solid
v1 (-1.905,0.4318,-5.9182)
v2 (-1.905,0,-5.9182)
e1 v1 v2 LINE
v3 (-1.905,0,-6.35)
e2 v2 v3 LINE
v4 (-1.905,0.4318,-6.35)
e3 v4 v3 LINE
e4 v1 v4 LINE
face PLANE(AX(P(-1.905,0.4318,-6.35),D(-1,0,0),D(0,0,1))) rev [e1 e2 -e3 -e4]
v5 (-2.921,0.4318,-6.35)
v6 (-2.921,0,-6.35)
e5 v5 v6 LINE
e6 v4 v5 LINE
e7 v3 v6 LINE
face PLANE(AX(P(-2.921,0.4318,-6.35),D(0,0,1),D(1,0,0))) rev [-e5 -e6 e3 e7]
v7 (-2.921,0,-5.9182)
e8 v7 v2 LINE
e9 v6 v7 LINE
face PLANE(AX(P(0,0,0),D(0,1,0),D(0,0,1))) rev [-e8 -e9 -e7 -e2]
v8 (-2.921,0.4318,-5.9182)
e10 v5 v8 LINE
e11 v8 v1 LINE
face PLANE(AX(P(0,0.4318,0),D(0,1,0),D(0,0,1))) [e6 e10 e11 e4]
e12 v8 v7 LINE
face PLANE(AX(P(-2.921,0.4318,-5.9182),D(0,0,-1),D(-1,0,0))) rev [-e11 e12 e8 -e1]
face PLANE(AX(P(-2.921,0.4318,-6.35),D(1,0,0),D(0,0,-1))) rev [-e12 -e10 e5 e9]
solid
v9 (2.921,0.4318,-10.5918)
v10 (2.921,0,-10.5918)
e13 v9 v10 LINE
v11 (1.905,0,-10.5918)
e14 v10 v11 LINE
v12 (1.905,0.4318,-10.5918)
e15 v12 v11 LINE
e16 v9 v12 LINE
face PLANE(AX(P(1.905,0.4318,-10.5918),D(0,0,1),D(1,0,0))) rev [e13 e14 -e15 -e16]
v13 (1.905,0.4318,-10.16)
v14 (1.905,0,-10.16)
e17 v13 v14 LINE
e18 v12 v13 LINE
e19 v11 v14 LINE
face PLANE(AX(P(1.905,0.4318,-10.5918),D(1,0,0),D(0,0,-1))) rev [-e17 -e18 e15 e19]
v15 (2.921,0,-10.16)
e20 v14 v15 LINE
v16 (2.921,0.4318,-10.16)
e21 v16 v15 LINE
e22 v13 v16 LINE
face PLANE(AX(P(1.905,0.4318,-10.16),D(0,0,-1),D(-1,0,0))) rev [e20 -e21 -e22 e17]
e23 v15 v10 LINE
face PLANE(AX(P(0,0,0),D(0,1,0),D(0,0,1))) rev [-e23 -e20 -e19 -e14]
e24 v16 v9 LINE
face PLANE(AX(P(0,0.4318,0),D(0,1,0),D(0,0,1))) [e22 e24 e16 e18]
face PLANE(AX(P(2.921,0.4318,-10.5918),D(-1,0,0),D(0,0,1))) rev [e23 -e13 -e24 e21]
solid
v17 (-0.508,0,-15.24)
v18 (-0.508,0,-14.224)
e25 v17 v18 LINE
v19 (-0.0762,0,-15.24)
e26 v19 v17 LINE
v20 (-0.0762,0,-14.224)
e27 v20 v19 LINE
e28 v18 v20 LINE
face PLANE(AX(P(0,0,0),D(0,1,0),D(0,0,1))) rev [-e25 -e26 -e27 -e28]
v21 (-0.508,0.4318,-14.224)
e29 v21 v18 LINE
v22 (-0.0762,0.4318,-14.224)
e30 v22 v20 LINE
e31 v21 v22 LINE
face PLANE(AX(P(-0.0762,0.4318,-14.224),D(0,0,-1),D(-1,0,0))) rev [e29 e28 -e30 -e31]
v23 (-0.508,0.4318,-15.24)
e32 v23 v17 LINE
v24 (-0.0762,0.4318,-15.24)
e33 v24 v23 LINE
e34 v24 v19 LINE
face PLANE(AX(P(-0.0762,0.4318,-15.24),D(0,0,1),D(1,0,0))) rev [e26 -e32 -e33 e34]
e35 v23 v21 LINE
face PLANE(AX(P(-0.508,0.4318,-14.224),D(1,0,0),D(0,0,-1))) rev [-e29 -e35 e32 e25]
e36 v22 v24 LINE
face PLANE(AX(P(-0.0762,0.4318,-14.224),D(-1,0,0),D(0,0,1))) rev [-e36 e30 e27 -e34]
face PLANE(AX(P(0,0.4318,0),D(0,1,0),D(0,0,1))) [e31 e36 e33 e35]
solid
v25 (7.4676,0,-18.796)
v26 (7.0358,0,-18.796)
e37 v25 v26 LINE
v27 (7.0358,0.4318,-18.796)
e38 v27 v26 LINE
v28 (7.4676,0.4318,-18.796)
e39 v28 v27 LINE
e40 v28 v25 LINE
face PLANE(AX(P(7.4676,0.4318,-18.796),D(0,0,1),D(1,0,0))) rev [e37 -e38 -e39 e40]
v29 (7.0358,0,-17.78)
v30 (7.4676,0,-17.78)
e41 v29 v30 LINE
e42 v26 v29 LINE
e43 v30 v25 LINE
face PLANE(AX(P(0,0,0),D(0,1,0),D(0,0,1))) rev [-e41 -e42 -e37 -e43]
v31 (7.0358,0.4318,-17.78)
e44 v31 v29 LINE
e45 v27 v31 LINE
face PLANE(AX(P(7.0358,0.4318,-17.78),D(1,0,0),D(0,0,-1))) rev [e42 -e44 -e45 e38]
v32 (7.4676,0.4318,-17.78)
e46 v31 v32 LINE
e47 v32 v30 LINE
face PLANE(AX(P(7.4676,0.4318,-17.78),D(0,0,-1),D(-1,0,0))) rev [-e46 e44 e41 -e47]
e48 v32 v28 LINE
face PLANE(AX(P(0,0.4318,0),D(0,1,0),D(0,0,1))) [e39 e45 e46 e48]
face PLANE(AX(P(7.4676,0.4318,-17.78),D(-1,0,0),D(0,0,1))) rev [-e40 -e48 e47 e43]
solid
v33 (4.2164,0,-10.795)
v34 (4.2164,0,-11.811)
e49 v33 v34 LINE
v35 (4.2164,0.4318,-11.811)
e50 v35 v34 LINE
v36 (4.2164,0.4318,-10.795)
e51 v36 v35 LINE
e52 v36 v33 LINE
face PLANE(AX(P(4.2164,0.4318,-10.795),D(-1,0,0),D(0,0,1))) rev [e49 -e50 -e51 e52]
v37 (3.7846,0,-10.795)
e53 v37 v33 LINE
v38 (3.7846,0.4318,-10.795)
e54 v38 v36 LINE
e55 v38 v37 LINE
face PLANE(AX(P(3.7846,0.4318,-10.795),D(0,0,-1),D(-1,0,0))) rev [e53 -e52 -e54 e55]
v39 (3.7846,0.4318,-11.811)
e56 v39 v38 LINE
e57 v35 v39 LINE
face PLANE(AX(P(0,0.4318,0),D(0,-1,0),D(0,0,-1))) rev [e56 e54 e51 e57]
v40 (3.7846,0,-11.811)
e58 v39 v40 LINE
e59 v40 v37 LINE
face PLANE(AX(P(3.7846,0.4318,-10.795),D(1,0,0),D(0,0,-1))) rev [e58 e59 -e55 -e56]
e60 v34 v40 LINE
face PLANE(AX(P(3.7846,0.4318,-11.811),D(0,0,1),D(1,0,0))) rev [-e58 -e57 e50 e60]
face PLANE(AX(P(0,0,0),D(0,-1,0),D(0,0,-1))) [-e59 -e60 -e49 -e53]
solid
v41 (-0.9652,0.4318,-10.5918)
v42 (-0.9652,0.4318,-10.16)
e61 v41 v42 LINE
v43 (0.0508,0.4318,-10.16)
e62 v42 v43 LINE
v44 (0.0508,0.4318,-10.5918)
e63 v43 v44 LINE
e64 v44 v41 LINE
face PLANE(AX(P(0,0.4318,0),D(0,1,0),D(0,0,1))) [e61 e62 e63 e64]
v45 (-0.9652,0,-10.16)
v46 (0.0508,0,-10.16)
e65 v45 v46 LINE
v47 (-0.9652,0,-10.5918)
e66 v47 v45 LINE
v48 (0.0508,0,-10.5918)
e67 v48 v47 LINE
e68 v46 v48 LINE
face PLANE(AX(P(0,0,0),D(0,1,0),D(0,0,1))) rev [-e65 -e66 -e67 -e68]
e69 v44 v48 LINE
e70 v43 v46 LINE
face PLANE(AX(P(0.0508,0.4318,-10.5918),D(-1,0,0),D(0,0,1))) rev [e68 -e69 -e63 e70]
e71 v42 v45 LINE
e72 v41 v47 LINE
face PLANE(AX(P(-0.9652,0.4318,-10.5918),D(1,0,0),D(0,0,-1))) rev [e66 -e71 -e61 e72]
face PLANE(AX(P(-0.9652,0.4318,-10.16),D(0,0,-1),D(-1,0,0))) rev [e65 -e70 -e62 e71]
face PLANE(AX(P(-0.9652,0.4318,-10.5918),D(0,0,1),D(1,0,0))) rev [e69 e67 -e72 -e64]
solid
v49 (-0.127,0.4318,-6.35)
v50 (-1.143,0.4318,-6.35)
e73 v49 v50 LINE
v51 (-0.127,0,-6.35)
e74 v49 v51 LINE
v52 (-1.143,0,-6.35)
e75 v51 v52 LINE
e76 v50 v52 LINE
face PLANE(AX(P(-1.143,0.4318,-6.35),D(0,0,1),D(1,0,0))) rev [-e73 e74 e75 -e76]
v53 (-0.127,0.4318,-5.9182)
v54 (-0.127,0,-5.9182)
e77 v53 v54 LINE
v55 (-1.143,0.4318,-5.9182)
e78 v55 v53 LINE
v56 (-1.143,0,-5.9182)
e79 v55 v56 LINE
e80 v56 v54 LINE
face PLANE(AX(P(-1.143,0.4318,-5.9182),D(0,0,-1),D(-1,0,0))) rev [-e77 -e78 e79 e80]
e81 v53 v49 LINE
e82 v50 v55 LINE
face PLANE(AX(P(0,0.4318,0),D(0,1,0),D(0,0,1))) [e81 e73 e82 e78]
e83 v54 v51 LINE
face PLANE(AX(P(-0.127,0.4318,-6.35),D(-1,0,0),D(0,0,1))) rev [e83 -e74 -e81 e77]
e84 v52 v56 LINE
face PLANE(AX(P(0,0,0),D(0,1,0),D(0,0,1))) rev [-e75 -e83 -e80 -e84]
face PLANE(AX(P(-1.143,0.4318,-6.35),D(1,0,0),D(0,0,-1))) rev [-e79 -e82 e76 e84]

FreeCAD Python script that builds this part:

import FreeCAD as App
import Part
import Sketcher
from FreeCAD import Vector
Q = App.Units.Quantity


def add_polygon(sketch, points):
    """Adds a closed chain of lines whose ends are joined by coincident constraints."""
    first, n = sketch.GeometryCount, len(points)
    for a, b in zip(points, points[1:] + points[:1]):
        sketch.addGeometry(Part.LineSegment(App.Vector(*a, 0), App.Vector(*b, 0)), False)
    for i in range(n):
        sketch.addConstraint(Sketcher.Constraint("Coincident", first + i, 2, first + (i + 1) % n, 1))

doc = App.newDocument("Part")
body = doc.addObject("PartDesign::Body", "Body")

# Sketch on XZ plane
sketch1 = body.newObject("Sketcher::SketchObject", "Sketch")
sketch1.AttachmentSupport = (doc.getObject("XZ_Plane"), [""])
sketch1.MapMode = "FlatFace"
add_polygon(sketch1, [(-1.143, -6.35), (-1.143, -5.9182), (-0.127, -5.9182), (-0.127, -6.35)])  # lines 0-3
sketch1.addConstraint([
    Sketcher.Constraint("Vertical", 0),
    Sketcher.Constraint("Horizontal", 1),
    Sketcher.Constraint("Vertical", 2),
    Sketcher.Constraint("Horizontal", 3),
    Sketcher.Constraint("DistanceX", 1, 1, 1, 2, Q("0.04 in")),
    Sketcher.Constraint("DistanceY", 0, 1, 0, 2, Q("0.017 in")),
    Sketcher.Constraint("DistanceY", 2, 2, -1, 1, Q("0.25 in")),
    Sketcher.Constraint("DistanceX", 0, 2, -1, 1, Q("0.045 in")),
])
pad1 = body.newObject("PartDesign::Pad", "Pad")
pad1.Profile = sketch1
pad1.Length = Q("0.017 in")
pad1.Reversed = True
body2 = doc.addObject("PartDesign::Body", "Body001")

# Sketch on XZ plane
sketch2 = body2.newObject("Sketcher::SketchObject", "Sketch001")
sketch2.AttachmentSupport = (doc.getObject("XZ_Plane001"), [""])
sketch2.MapMode = "FlatFace"
add_polygon(sketch2, [(-0.508, -15.24), (-0.508, -14.224), (-0.0762, -14.224), (-0.0762, -15.24)])  # lines 0-3
sketch2.addConstraint([
    Sketcher.Constraint("Vertical", 0),
    Sketcher.Constraint("Horizontal", 1),
    Sketcher.Constraint("Vertical", 2),
    Sketcher.Constraint("Horizontal", 3),
    Sketcher.Constraint("DistanceY", 0, 1, 0, 2, Q("0.04 in")),
    Sketcher.Constraint("DistanceY", 2, 2, -1, 1, Q("0.6 in")),
    Sketcher.Constraint("DistanceX", 1, 1, 1, 2, Q("0.017 in")),
    Sketcher.Constraint("DistanceX", 0, 2, -1, 1, Q("0.02 in")),
])
pad2 = body2.newObject("PartDesign::Pad", "Pad001")
pad2.Profile = sketch2
pad2.Length = Q("0.017 in")
pad2.Reversed = True
body3 = doc.addObject("PartDesign::Body", "Body002")

# Sketch on XZ plane
sketch3 = body3.newObject("Sketcher::SketchObject", "Sketch002")
sketch3.AttachmentSupport = (doc.getObject("XZ_Plane002"), [""])
sketch3.MapMode = "FlatFace"
add_polygon(sketch3, [(7.0358, -18.796), (7.0358, -17.78), (7.4676, -17.78), (7.4676, -18.796)])  # lines 0-3
sketch3.addConstraint([
    Sketcher.Constraint("Vertical", 0),
    Sketcher.Constraint("Horizontal", 1),
    Sketcher.Constraint("Vertical", 2),
    Sketcher.Constraint("Horizontal", 3),
    Sketcher.Constraint("DistanceY", 0, 1, 0, 2, Q("0.04 in")),
    Sketcher.Constraint("DistanceY", 0, 2, -1, 1, Q("0.7 in")),
    Sketcher.Constraint("DistanceX", 1, 1, 1, 2, Q("0.017 in")),
    Sketcher.Constraint("DistanceX", -1, 1, 0, 2, Q("0.277 in")),
])
pad3 = body3.newObject("PartDesign::Pad", "Pad002")
pad3.Profile = sketch3
pad3.Length = Q("0.017 in")
pad3.Reversed = True
body4 = doc.addObject("PartDesign::Body", "Body003")

# Sketch on XZ plane
sketch4 = body4.newObject("Sketcher::SketchObject", "Sketch003")
sketch4.AttachmentSupport = (doc.getObject("XZ_Plane003"), [""])
sketch4.MapMode = "FlatFace"
add_polygon(sketch4, [(-2.921, -6.35), (-2.921, -5.9182), (-1.905, -5.9182), (-1.905, -6.35)])  # lines 0-3
sketch4.addConstraint([
    Sketcher.Constraint("Vertical", 0),
    Sketcher.Constraint("Horizontal", 1),
    Sketcher.Constraint("Vertical", 2),
    Sketcher.Constraint("Horizontal", 3),
    Sketcher.Constraint("DistanceX", 1, 1, 1, 2, Q("0.04 in")),
    Sketcher.Constraint("DistanceY", 0, 1, 0, 2, Q("0.017 in")),
    Sketcher.Constraint("DistanceY", 2, 2, -1, 1, Q("0.25 in")),
    Sketcher.Constraint("DistanceX", 0, 2, -1, 1, Q("0.115 in")),
])
pad4 = body4.newObject("PartDesign::Pad", "Pad003")
pad4.Profile = sketch4
pad4.Length = Q("0.017 in")
pad4.Reversed = True
body5 = doc.addObject("PartDesign::Body", "Body004")

# Sketch on XZ plane
sketch5 = body5.newObject("Sketcher::SketchObject", "Sketch004")
sketch5.AttachmentSupport = (doc.getObject("XZ_Plane004"), [""])
sketch5.MapMode = "FlatFace"
add_polygon(sketch5, [(-0.9652, -10.5918), (-0.9652, -10.16), (0.0508, -10.16), (0.0508, -10.5918)])  # lines 0-3
sketch5.addConstraint([
    Sketcher.Constraint("Vertical", 0),
    Sketcher.Constraint("Horizontal", 1),
    Sketcher.Constraint("Vertical", 2),
    Sketcher.Constraint("Horizontal", 3),
    Sketcher.Constraint("DistanceX", 1, 1, 1, 2, Q("0.04 in")),
    Sketcher.Constraint("DistanceY", 0, 2, -1, 1, Q("0.4 in")),
    Sketcher.Constraint("DistanceY", 0, 1, 0, 2, Q("0.017 in")),
    Sketcher.Constraint("DistanceX", 0, 2, -1, 1, Q("0.038 in")),
])
pad5 = body5.newObject("PartDesign::Pad", "Pad004")
pad5.Profile = sketch5
pad5.Length = Q("0.017 in")
pad5.Reversed = True
body6 = doc.addObject("PartDesign::Body", "Body005")

# Sketch on XZ plane
sketch6 = body6.newObject("Sketcher::SketchObject", "Sketch005")
sketch6.AttachmentSupport = (doc.getObject("XZ_Plane005"), [""])
sketch6.MapMode = "FlatFace"
add_polygon(sketch6, [(1.905, -10.5918), (1.905, -10.16), (2.921, -10.16), (2.921, -10.5918)])  # lines 0-3
sketch6.addConstraint([
    Sketcher.Constraint("Vertical", 0),
    Sketcher.Constraint("Horizontal", 1),
    Sketcher.Constraint("Vertical", 2),
    Sketcher.Constraint("Horizontal", 3),
    Sketcher.Constraint("DistanceX", 1, 1, 1, 2, Q("0.04 in")),
    Sketcher.Constraint("DistanceY", 0, 2, -1, 1, Q("0.4 in")),
    Sketcher.Constraint("DistanceY", 0, 1, 0, 2, Q("0.017 in")),
    Sketcher.Constraint("DistanceX", -1, 1, 0, 2, Q("0.075 in")),
])
pad6 = body6.newObject("PartDesign::Pad", "Pad005")
pad6.Profile = sketch6
pad6.Length = Q("0.017 in")
pad6.Reversed = True
body7 = doc.addObject("PartDesign::Body", "Body006")

# Sketch on XZ plane
sketch7 = body7.newObject("Sketcher::SketchObject", "Sketch006")
sketch7.AttachmentSupport = (doc.getObject("XZ_Plane006"), [""])
sketch7.MapMode = "FlatFace"
add_polygon(sketch7, [(3.7846, -11.811), (3.7846, -10.795), (4.2164, -10.795), (4.2164, -11.811)])  # lines 0-3
sketch7.addConstraint([
    Sketcher.Constraint("Vertical", 0),
    Sketcher.Constraint("Horizontal", 1),
    Sketcher.Constraint("Vertical", 2),
    Sketcher.Constraint("Horizontal", 3),
    Sketcher.Constraint("DistanceY", 0, 1, 0, 2, Q("0.04 in")),
    Sketcher.Constraint("DistanceX", 1, 1, 1, 2, Q("0.017 in")),
    Sketcher.Constraint("DistanceX", -1, 1, 0, 2, Q("0.149 in")),
    Sketcher.Constraint("DistanceY", 0, 2, -1, 1, Q("0.425 in")),
])
pad7 = body7.newObject("PartDesign::Pad", "Pad006")
pad7.Profile = sketch7
pad7.Length = Q("0.017 in")
pad7.Reversed = True

doc.recompute()
